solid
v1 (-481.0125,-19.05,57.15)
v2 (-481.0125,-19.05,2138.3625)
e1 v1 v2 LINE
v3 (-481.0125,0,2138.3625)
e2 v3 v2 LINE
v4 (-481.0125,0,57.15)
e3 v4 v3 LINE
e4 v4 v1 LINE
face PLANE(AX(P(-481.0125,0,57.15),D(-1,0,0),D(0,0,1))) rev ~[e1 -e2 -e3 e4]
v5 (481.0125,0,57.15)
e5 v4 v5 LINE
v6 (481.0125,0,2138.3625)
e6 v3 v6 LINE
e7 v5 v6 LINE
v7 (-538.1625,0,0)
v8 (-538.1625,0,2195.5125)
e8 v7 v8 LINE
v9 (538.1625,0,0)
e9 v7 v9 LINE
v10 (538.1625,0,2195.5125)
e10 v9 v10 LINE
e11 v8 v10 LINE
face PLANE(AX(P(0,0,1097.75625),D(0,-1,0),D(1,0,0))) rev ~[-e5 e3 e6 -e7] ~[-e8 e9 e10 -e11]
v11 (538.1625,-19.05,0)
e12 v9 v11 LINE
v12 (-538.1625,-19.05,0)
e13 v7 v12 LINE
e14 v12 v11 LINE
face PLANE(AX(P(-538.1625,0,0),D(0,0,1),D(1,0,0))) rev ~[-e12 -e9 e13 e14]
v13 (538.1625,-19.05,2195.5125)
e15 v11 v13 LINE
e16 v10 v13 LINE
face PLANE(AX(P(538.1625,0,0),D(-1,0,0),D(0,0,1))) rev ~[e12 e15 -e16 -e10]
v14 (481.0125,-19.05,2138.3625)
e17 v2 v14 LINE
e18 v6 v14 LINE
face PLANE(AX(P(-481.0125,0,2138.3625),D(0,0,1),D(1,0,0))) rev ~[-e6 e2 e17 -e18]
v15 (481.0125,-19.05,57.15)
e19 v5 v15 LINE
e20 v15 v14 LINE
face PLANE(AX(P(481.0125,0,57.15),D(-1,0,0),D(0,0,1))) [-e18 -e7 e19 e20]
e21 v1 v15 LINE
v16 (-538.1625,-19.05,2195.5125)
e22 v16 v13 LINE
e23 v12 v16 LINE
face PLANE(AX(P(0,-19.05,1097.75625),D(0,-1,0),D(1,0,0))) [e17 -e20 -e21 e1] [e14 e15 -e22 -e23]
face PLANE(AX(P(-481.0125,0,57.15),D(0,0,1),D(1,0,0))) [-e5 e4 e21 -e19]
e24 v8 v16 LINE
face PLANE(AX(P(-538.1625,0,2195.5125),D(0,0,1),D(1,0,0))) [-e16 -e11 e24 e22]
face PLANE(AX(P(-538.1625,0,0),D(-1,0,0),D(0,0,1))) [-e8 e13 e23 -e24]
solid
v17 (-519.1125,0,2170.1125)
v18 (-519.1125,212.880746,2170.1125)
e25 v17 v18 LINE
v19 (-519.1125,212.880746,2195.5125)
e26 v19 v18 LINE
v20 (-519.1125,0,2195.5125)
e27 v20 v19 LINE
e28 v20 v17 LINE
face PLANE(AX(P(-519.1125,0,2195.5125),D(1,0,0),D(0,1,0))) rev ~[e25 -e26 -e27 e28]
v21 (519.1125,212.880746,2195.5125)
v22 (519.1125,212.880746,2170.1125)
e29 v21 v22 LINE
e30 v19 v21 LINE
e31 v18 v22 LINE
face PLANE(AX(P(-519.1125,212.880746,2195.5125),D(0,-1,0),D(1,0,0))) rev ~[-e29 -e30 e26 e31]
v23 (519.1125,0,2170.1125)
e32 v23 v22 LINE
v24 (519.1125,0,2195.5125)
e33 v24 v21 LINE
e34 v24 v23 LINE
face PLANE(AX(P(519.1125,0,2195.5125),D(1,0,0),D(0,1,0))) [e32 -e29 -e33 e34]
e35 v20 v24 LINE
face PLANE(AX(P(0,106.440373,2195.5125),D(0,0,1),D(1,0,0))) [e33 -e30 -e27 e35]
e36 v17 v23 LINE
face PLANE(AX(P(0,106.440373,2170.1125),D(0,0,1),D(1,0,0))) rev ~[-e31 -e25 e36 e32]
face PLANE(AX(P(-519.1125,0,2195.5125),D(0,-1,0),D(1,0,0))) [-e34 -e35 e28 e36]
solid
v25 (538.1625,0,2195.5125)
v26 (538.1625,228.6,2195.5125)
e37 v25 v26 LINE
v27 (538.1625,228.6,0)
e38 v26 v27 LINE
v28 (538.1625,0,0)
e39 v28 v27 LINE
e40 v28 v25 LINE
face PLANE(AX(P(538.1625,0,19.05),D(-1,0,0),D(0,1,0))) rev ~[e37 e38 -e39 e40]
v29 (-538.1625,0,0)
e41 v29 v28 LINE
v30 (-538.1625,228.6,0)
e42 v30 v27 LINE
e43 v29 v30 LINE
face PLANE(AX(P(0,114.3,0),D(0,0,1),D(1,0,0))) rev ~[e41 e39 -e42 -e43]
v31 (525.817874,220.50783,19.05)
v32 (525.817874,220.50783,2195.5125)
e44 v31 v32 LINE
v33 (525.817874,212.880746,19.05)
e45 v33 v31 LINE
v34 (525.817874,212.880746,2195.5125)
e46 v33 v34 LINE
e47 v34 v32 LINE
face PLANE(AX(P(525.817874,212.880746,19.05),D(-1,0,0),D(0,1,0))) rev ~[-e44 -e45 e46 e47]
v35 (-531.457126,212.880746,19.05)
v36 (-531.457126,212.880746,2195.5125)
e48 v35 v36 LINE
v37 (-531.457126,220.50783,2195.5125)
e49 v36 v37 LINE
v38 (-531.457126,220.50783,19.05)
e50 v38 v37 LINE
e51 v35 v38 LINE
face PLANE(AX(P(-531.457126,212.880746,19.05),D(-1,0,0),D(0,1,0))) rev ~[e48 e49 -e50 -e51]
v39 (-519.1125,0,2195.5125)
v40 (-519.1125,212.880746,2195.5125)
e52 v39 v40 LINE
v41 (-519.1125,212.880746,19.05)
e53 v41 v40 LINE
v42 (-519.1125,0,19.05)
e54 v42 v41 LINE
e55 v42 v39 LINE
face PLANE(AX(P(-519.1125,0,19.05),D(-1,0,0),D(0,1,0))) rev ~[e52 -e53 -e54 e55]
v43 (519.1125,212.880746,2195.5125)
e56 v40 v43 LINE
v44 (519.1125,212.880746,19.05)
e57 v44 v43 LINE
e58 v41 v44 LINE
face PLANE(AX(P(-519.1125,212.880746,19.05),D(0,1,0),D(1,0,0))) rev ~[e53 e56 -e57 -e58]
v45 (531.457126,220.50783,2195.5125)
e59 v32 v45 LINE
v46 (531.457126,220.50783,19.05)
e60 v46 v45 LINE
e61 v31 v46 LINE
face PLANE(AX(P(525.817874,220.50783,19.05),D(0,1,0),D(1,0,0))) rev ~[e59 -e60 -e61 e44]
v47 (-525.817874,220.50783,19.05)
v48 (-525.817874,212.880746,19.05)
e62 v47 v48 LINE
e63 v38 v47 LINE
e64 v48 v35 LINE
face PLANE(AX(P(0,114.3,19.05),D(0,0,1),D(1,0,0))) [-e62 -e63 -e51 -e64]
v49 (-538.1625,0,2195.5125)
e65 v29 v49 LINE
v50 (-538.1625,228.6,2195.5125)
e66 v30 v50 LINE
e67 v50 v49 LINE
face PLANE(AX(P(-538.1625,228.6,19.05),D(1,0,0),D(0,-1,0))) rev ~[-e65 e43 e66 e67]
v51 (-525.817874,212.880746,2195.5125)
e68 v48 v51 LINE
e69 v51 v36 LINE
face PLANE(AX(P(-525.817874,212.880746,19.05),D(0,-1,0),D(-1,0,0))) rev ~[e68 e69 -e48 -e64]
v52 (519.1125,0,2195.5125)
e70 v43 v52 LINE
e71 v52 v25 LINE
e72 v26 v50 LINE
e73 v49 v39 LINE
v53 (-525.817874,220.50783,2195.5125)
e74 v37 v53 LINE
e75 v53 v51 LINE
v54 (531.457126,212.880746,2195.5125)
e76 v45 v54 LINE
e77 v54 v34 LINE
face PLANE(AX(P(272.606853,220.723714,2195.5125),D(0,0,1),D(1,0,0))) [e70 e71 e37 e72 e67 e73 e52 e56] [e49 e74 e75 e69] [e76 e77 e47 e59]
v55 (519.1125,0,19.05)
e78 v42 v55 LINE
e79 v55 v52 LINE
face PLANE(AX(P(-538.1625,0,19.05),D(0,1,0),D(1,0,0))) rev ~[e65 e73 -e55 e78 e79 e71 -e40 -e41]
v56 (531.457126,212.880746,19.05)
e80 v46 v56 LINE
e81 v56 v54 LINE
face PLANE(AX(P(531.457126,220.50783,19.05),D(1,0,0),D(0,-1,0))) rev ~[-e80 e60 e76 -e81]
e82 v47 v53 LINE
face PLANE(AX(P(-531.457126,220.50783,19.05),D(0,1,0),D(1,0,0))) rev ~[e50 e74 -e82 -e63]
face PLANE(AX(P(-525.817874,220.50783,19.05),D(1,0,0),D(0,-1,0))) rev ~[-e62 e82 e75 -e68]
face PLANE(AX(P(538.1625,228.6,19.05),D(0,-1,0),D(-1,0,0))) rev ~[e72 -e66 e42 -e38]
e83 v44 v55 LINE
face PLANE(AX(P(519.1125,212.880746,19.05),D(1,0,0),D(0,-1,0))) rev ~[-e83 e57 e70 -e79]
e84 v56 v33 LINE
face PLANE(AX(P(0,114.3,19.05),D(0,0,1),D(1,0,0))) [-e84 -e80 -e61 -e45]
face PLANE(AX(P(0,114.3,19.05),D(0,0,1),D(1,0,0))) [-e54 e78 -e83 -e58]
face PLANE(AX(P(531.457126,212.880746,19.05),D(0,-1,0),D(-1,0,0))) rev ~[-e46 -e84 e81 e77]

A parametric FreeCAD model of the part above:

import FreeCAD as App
import Part
import Sketcher
from FreeCAD import Vector
Q = App.Units.Quantity


def add_polygon(sketch, points):
    """Adds a closed chain of lines whose ends are joined by coincident constraints."""
    first, n = sketch.GeometryCount, len(points)
    for a, b in zip(points, points[1:] + points[:1]):
        sketch.addGeometry(Part.LineSegment(App.Vector(*a, 0), App.Vector(*b, 0)), False)
    for i in range(n):
        sketch.addConstraint(Sketcher.Constraint("Coincident", first + i, 2, first + (i + 1) % n, 1))

doc = App.newDocument("Part")
body = doc.addObject("PartDesign::Body", "Body")

# Sketch on XY plane
sketch1 = body.newObject("Sketcher::SketchObject", "Sketch")
sketch1.AttachmentSupport = (doc.getObject("XY_Plane"), [""])
sketch1.MapMode = "FlatFace"
add_polygon(sketch1, [(-538, 229), (-538, 0), (538, 0), (538, 229)])  # lines 0-3
sketch1.addConstraint(Sketcher.Constraint("Vertical", 0))
sketch1.addConstraint(Sketcher.Constraint("Horizontal", 1))
sketch1.addConstraint(Sketcher.Constraint("Vertical", 2))
sketch1.addConstraint(Sketcher.Constraint("Horizontal", 3))
sketch1.addConstraint(Sketcher.Constraint("Symmetric", 0, 2, 1, 2, -1, 1))
sketch1.addConstraint(Sketcher.Constraint("DistanceY", 0, 2, 0, 1, Q("9 in")))
sketch1.addConstraint(Sketcher.Constraint("DistanceX", 1, 1, 1, 2, Q("42.375 in")))
pad1 = body.newObject("PartDesign::Pad", "Pad")
pad1.Profile = sketch1
pad1.Length = Q("0.75 in")

# Sketch on XY plane
sketch2 = body.newObject("Sketcher::SketchObject", "Sketch001")
sketch2.AttachmentSupport = (doc.getObject("XY_Plane"), [""])
sketch2.MapMode = "FlatFace"
sketch2.AttachmentOffset = App.Placement(Vector(0, 0, 0.75 * 25.4), App.Rotation())
add_polygon(sketch2, [(538, 229), (-538, 229), (-538, 0), (-519, 0), (-519, 213), (519, 213), (519, 0), (538, 0)])  # lines 0-7
add_polygon(sketch2, [(526, 213), (526, 221), (531, 221), (531, 213)])  # lines 8-11
add_polygon(sketch2, [(-531, 213), (-531, 221), (-526, 221), (-526, 213)])  # lines 12-15
sketch2.addConstraint(Sketcher.Constraint("Horizontal", 0))
sketch2.addConstraint(Sketcher.Constraint("Vertical", 1))
sketch2.addConstraint(Sketcher.Constraint("Horizontal", 2))
sketch2.addConstraint(Sketcher.Constraint("Vertical", 3))
sketch2.addConstraint(Sketcher.Constraint("Horizontal", 4))
sketch2.addConstraint(Sketcher.Constraint("Vertical", 5))
sketch2.addConstraint(Sketcher.Constraint("Horizontal", 6))
sketch2.addConstraint(Sketcher.Constraint("Vertical", 7))
sketch2.addConstraint(Sketcher.Constraint("Vertical", 8))
sketch2.addConstraint(Sketcher.Constraint("Horizontal", 9))
sketch2.addConstraint(Sketcher.Constraint("Vertical", 10))
sketch2.addConstraint(Sketcher.Constraint("Horizontal", 11))
sketch2.addConstraint(Sketcher.Constraint("Vertical", 12))
sketch2.addConstraint(Sketcher.Constraint("Horizontal", 13))
sketch2.addConstraint(Sketcher.Constraint("Vertical", 14))
sketch2.addConstraint(Sketcher.Constraint("Horizontal", 15))
sketch2.addConstraint(Sketcher.Constraint("Symmetric", 2, 2, 5, 2, -1, 1))
sketch2.addConstraint(Sketcher.Constraint("Symmetric", 1, 2, 6, 2, -2))
sketch2.addConstraint(Sketcher.Constraint("Symmetric", 9, 2, 12, 2, -2))
sketch2.addConstraint(Sketcher.Constraint("Symmetric", 11, 2, 14, 2, -2))
sketch2.addConstraint(Sketcher.Constraint("Horizontal", 4, 2, 10, 2))
sketch2.addConstraint(Sketcher.Constraint("DistanceY", 1, 2, 1, 1, Q("9 in")))
sketch2.addConstraint(Sketcher.Constraint("DistanceX", 2, 1, 2, 2, Q("0.75 in")))
sketch2.addConstraint(Sketcher.Constraint("DistanceX", 0, 2, 0, 1, Q("42.375 in")))
sketch2.addConstraint(Sketcher.Constraint("DistanceX", 9, 1, 9, 2, 5.639252))
sketch2.addConstraint(Sketcher.Constraint("DistanceY", 3, 1, 3, 2, 212.880746))
sketch2.addConstraint(Sketcher.Constraint("DistanceY", 8, 1, 8, 2, 7.627084))
sketch2.addConstraint(Sketcher.Constraint("DistanceX", -1, 1, 8, 2, 525.817874))
pad2 = body.newObject("PartDesign::Pad", "Pad001")
pad2.Profile = sketch2
pad2.Length = Q("85.6875 in")
body2 = doc.addObject("PartDesign::Body", "Body001")

# Sketch on XY plane
sketch3 = body2.newObject("Sketcher::SketchObject", "Sketch002")
sketch3.AttachmentSupport = (doc.getObject("XY_Plane001"), [""])
sketch3.MapMode = "FlatFace"
sketch3.AttachmentOffset = App.Placement(Vector(0, 0, 86.4375 * 25.4), App.Rotation())
add_polygon(sketch3, [(-519, 213), (-519, 0), (519, 0), (519, 213)])  # lines 0-3
sketch3.addConstraint(Sketcher.Constraint("Vertical", 0))
sketch3.addConstraint(Sketcher.Constraint("Horizontal", 1))
sketch3.addConstraint(Sketcher.Constraint("Vertical", 2))
sketch3.addConstraint(Sketcher.Constraint("Horizontal", 3))
sketch3.addConstraint(Sketcher.Constraint("Symmetric", 0, 2, 1, 2, -1, 1))
sketch3.addConstraint(Sketcher.Constraint("DistanceX", 1, 1, 1, 2, Q("40.875 in")))
sketch3.addConstraint(Sketcher.Constraint("DistanceY", 0, 2, 0, 1, 212.880746))
pad3 = body2.newObject("PartDesign::Pad", "Pad002")
pad3.Profile = sketch3
pad3.Length = Q("1 in")
pad3.Reversed = True
body3 = doc.addObject("PartDesign::Body", "Body002")

# Sketch on XZ plane
sketch4 = body3.newObject("Sketcher::SketchObject", "Sketch003")
sketch4.AttachmentSupport = (doc.getObject("XZ_Plane002"), [""])
sketch4.MapMode = "FlatFace"
add_polygon(sketch4, [(-538, 2196), (-538, 0), (538, 0), (538, 2196)])  # lines 0-3
add_polygon(sketch4, [(481, 57), (-481, 57), (-481, 2138), (481, 2138)])  # lines 4-7
sketch4.addConstraint(Sketcher.Constraint("Vertical", 0))
sketch4.addConstraint(Sketcher.Constraint("Horizontal", 1))
sketch4.addConstraint(Sketcher.Constraint("Vertical", 2))
sketch4.addConstraint(Sketcher.Constraint("Horizontal", 3))
sketch4.addConstraint(Sketcher.Constraint("Horizontal", 4))
sketch4.addConstraint(Sketcher.Constraint("Vertical", 5))
sketch4.addConstraint(Sketcher.Constraint("Horizontal", 6))
sketch4.addConstraint(Sketcher.Constraint("Vertical", 7))
sketch4.addConstraint(Sketcher.Constraint("Symmetric", 0, 2, 1, 2, -1, 1))
sketch4.addConstraint(Sketcher.Constraint("DistanceX", 1, 1, 1, 2, Q("42.375 in")))
sketch4.addConstraint(Sketcher.Constraint("DistanceX", 4, 2, 4, 1, Q("37.875 in")))
sketch4.addConstraint(Sketcher.Constraint("DistanceY", 0, 2, 0, 1, Q("86.4375 in")))
sketch4.addConstraint(Sketcher.Constraint("DistanceY", 5, 1, 5, 2, Q("81.9375 in")))
sketch4.addConstraint(Sketcher.Constraint("DistanceY", -1, 1, 4, 2, Q("2.25 in")))
sketch4.addConstraint(Sketcher.Constraint("DistanceX", 0, 2, 4, 2, Q("2.25 in")))
pad4 = body3.newObject("PartDesign::Pad", "Pad003")
pad4.Profile = sketch4
pad4.Length = Q("0.75 in")

doc.recompute()
